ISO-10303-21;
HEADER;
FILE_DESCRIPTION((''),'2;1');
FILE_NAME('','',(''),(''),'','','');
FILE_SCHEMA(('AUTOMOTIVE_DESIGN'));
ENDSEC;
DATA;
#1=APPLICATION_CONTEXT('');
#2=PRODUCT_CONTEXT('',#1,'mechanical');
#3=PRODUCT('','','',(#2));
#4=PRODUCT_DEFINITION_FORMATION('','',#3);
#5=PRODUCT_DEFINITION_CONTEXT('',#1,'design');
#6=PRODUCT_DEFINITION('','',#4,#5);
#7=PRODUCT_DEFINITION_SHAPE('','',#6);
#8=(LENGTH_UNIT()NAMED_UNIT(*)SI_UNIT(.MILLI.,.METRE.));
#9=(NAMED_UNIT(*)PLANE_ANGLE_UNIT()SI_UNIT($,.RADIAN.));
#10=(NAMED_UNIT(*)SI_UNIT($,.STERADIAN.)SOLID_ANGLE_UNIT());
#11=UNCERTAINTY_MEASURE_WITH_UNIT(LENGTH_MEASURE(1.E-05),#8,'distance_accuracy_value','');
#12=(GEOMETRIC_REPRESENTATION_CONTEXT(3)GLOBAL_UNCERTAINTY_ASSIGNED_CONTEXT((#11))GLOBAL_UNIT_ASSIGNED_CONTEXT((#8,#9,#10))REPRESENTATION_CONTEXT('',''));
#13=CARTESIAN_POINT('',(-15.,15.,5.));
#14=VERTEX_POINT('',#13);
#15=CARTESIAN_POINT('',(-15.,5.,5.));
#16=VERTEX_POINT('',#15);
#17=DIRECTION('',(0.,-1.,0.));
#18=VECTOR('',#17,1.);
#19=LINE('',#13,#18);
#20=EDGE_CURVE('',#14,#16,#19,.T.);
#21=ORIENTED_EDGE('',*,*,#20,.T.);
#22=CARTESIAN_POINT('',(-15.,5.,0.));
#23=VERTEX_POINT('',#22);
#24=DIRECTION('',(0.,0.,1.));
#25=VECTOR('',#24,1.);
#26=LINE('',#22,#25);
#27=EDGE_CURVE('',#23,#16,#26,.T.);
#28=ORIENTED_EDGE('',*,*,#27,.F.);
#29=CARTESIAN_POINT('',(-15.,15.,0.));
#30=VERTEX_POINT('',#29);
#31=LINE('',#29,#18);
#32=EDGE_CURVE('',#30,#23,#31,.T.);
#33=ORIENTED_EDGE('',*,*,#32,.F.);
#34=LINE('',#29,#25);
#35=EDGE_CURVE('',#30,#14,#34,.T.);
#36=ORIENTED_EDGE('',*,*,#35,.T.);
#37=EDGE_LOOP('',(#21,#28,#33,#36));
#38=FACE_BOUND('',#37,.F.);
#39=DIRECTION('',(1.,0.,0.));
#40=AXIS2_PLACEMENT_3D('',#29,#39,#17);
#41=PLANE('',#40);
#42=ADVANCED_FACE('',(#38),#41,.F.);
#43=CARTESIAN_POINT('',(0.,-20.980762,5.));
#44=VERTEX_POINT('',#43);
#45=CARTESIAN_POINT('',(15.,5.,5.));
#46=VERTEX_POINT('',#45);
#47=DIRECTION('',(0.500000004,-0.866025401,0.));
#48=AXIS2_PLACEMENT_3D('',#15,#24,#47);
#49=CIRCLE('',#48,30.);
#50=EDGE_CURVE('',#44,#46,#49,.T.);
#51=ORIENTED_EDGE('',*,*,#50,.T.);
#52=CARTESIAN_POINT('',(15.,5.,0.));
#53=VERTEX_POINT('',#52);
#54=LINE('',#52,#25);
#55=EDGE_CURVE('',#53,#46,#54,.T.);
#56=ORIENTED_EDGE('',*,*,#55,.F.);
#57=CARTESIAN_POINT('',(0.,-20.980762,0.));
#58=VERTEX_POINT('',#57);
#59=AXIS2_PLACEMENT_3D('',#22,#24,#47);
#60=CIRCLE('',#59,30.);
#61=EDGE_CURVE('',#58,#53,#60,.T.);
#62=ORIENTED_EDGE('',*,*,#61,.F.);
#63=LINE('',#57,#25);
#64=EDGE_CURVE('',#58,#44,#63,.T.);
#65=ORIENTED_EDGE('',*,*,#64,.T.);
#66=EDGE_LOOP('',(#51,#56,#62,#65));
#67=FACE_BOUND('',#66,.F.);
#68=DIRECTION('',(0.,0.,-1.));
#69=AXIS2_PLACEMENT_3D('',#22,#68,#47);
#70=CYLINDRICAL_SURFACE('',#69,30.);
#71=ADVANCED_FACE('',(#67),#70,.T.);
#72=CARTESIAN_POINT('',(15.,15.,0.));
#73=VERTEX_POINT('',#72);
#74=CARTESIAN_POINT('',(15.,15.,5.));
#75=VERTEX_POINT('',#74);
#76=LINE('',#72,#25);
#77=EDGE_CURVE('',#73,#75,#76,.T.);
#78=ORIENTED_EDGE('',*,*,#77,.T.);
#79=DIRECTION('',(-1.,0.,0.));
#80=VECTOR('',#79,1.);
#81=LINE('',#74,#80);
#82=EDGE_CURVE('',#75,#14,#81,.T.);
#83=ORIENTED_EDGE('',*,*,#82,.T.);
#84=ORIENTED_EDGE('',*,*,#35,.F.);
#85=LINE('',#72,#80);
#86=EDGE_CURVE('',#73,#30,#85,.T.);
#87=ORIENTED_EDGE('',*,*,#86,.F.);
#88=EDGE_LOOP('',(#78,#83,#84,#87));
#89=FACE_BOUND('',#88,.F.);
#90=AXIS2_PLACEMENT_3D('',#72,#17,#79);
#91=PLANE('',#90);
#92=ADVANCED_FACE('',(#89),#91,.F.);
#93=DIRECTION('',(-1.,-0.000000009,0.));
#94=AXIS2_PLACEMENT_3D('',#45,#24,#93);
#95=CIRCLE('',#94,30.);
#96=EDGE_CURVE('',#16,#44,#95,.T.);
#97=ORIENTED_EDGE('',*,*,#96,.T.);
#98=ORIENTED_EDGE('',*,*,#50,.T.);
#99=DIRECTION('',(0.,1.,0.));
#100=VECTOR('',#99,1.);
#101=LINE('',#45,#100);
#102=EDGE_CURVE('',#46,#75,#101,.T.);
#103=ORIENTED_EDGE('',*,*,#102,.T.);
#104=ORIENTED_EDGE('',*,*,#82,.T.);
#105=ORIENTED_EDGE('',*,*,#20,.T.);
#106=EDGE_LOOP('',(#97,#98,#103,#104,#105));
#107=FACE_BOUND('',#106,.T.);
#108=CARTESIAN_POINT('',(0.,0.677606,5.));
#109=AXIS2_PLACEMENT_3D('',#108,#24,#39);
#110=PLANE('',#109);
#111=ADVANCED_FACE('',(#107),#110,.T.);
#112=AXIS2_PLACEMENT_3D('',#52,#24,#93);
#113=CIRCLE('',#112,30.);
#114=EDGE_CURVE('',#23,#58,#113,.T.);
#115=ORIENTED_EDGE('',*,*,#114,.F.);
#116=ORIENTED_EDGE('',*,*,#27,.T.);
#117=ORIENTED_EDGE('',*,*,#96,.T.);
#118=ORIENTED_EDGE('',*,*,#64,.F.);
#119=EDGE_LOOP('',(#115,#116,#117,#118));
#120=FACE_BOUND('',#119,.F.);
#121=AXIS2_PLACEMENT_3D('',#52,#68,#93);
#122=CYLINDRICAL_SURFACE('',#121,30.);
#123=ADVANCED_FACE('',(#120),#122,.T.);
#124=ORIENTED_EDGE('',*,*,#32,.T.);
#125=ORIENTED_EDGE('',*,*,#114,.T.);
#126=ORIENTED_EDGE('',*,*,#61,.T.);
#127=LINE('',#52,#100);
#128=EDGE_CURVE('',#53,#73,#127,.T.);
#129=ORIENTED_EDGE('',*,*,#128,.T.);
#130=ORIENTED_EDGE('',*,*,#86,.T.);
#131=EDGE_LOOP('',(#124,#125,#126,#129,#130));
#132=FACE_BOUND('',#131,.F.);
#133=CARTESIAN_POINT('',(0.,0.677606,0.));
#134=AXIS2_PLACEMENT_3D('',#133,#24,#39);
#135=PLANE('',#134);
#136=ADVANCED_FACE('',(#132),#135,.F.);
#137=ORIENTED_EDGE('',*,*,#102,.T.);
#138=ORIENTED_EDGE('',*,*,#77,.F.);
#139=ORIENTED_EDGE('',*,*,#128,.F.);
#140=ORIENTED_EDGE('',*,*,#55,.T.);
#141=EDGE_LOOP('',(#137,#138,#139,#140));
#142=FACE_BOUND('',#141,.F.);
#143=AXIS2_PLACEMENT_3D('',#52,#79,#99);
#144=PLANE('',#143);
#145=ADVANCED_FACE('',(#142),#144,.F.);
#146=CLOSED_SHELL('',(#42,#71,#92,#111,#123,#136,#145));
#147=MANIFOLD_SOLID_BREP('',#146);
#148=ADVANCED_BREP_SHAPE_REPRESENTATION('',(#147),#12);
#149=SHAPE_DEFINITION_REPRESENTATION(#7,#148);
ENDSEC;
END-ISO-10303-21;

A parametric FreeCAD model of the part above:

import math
import FreeCAD as App
import Part
import Sketcher
from FreeCAD import Vector
Q = App.Units.Quantity

doc = App.newDocument("Part")
body = doc.addObject("PartDesign::Body", "Body")

# Sketch on XY plane
sketch1 = body.newObject("Sketcher::SketchObject", "Sketch")
sketch1.AttachmentSupport = (doc.getObject("XY_Plane"), [""])
sketch1.MapMode = "FlatFace"
sketch1.addGeometry([
    Part.LineSegment(Vector(15, 15, 0), Vector(-15, 15, 0)),  # 0
    Part.LineSegment(Vector(-15, 15, 0), Vector(-15, 5, 0)),  # 1
    Part.ArcOfCircle(Part.Circle(Vector(15, 5, 0), Vector(0, 0, 1), 30), math.radians(-179.999999), math.radians(-120)),  # 2
    Part.ArcOfCircle(Part.Circle(Vector(-15, 5, 0), Vector(0, 0, 1), 30), math.radians(-60), math.radians(-0.000001)),  # 3
    Part.LineSegment(Vector(15, 5, 0), Vector(15, 15, 0)),  # 4
], False)
sketch1.addConstraint([
    Sketcher.Constraint("Coincident", 0, 2, 1, 1),
    Sketcher.Constraint("Tangent", 1, 2, 2, 1),
    Sketcher.Constraint("Coincident", 2, 2, 3, 1),
    Sketcher.Constraint("Tangent", 3, 2, 4, 1),
    Sketcher.Constraint("Coincident", 4, 2, 0, 1),
    Sketcher.Constraint("Horizontal", 0),
    Sketcher.Constraint("Vertical", 1),
    Sketcher.Constraint("Vertical", 4),
    Sketcher.Constraint("Coincident", 1, 2, 3, 3),
    Sketcher.Constraint("Equal", 2, 3),
    Sketcher.Constraint("PointOnObject", 2, 2, -2),
    Sketcher.Constraint("Radius", 2, Q("30 mm")),
    Sketcher.Constraint("DistanceY", 1, 2, 1, 1, Q("10 mm")),
    Sketcher.Constraint("DistanceY", -1, 1, 2, 3, Q("5 mm")),
])
pad1 = body.newObject("PartDesign::Pad", "Pad")
pad1.Profile = sketch1
pad1.Length = 5

doc.recompute()
